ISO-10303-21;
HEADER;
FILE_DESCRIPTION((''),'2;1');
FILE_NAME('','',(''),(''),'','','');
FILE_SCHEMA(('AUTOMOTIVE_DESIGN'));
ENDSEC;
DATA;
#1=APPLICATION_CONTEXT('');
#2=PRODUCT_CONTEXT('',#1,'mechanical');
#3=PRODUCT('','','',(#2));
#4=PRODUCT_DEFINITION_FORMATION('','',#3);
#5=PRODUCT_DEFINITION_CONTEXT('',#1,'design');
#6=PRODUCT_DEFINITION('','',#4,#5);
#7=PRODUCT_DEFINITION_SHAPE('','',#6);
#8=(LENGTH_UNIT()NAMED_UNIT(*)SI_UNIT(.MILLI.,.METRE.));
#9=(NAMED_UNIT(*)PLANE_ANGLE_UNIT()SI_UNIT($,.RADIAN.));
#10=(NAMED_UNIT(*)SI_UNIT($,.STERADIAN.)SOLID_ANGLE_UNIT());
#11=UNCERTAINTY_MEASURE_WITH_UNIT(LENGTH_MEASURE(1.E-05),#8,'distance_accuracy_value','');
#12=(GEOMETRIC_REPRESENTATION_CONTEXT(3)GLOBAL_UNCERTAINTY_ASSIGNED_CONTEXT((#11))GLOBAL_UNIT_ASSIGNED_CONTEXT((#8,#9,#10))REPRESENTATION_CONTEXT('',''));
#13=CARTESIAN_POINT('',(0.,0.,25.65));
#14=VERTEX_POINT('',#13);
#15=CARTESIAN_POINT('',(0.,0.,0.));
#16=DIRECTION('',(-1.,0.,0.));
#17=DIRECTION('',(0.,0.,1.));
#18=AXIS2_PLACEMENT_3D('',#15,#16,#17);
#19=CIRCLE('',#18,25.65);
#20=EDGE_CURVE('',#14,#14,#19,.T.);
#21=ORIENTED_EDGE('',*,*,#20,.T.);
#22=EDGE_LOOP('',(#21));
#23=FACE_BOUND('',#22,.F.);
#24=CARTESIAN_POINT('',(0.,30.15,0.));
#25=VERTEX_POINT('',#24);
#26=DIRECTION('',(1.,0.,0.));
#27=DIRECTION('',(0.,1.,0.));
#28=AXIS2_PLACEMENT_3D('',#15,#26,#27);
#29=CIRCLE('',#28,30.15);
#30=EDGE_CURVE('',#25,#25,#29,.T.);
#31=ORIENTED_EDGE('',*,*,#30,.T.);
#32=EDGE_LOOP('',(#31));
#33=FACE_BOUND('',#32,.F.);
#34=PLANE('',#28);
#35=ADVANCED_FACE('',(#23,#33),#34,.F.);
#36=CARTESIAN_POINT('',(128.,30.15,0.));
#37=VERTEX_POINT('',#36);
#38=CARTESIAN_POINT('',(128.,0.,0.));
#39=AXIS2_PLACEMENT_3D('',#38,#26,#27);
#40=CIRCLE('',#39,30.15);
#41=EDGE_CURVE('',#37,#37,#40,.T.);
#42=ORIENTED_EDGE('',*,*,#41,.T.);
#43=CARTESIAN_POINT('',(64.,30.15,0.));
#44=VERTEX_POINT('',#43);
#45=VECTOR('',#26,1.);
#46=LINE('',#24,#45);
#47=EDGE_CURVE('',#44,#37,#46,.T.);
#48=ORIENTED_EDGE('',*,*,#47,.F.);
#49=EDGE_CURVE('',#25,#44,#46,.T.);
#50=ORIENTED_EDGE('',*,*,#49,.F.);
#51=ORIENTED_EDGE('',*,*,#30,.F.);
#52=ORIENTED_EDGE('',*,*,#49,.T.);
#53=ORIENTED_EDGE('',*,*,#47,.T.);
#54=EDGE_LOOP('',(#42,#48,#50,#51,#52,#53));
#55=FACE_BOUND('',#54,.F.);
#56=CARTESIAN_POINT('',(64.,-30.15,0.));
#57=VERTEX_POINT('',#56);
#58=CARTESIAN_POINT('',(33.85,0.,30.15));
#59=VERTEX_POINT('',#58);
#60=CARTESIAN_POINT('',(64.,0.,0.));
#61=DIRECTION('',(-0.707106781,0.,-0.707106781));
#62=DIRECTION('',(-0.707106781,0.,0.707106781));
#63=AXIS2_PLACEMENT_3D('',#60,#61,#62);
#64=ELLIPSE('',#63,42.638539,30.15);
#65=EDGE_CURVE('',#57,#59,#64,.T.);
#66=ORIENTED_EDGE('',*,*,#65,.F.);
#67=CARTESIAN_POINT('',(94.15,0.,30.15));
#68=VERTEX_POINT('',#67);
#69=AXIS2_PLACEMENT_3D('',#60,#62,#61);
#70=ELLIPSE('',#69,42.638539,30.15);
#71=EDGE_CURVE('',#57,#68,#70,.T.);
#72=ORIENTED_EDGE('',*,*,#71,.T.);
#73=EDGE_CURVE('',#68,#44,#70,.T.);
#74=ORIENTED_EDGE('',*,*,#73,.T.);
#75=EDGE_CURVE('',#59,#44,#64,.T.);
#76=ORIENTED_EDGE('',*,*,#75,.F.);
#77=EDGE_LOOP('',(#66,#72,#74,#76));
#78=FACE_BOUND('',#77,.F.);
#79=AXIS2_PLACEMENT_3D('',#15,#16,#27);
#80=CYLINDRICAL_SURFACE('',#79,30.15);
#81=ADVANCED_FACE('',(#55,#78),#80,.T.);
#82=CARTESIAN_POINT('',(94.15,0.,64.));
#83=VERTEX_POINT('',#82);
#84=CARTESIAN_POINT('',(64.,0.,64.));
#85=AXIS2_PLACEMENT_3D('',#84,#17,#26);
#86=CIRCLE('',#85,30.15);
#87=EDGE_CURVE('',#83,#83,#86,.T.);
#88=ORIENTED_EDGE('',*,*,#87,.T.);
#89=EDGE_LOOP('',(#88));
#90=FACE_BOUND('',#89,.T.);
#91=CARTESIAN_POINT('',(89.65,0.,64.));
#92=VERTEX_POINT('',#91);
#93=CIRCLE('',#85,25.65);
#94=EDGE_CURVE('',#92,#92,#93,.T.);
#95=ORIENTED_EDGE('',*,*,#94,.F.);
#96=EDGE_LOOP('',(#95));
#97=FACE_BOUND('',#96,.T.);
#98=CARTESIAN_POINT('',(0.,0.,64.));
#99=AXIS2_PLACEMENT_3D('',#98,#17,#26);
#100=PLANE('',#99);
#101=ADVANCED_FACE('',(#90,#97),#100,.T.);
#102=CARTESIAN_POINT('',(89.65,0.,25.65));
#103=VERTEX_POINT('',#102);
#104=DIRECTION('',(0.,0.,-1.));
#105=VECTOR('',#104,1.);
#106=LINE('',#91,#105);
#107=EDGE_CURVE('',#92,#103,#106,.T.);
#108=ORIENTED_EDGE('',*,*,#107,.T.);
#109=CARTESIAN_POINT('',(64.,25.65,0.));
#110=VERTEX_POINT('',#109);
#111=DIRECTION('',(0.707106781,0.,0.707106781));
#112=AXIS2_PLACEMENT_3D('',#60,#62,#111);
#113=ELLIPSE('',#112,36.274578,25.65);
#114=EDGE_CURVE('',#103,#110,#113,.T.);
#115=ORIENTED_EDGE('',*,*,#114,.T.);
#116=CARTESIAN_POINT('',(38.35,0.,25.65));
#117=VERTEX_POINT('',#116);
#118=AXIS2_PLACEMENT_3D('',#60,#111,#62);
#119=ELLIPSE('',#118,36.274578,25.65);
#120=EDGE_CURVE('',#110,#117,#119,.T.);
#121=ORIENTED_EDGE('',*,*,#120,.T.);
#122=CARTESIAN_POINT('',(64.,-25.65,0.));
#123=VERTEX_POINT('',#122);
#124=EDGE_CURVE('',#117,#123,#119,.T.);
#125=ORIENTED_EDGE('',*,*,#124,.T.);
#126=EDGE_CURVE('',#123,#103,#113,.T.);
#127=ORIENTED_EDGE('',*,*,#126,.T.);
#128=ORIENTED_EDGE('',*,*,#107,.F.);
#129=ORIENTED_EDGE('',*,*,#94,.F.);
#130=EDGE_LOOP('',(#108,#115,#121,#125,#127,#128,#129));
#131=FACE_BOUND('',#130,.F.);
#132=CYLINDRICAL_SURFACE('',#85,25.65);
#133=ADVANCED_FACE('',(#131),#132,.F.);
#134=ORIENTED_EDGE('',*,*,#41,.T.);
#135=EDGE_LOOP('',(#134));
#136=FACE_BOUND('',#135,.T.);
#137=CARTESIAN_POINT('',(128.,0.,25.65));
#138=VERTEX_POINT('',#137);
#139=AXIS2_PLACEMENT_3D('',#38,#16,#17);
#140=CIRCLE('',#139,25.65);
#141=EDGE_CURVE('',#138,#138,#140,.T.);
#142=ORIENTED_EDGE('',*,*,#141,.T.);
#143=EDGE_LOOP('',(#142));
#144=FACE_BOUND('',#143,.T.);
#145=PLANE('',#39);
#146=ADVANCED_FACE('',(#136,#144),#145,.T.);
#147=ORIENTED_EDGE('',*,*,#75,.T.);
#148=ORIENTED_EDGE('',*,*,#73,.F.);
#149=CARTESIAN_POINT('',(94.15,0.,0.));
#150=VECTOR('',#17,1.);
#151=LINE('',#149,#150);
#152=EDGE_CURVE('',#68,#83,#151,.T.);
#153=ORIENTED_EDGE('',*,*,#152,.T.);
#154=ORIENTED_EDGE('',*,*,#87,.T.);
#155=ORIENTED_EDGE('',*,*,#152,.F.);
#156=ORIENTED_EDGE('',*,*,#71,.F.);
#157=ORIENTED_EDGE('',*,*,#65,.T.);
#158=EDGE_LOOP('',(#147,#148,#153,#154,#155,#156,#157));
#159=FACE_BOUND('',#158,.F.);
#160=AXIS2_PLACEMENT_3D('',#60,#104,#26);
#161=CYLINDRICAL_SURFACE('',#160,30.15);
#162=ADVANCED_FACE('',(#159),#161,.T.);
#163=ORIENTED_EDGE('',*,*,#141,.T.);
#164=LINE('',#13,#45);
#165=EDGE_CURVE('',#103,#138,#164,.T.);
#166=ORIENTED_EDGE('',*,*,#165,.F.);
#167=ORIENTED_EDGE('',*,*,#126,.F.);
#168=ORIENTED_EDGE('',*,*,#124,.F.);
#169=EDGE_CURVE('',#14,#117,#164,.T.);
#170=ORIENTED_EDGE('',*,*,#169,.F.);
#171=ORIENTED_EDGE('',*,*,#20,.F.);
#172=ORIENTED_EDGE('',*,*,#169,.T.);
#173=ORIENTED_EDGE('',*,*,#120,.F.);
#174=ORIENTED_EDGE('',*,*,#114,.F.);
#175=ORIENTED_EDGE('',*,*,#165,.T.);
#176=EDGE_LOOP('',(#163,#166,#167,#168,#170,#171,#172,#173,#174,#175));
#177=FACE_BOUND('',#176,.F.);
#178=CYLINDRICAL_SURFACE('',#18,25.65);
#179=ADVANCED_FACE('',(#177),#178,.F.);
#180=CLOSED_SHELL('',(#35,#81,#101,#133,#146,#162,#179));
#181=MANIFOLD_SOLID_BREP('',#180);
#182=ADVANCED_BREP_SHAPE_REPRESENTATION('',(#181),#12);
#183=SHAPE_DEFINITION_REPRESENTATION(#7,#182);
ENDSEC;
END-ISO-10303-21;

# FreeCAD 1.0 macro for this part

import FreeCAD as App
import Part
import Sketcher
from FreeCAD import Vector
Q = App.Units.Quantity

doc = App.newDocument("Part")
body = doc.addObject("PartDesign::Body", "Body")

# Sketch on YZ plane
sketch1 = doc.addObject("Sketcher::SketchObject", "Sketch")
body.addObject(sketch1)
sketch1.AttachmentSupport = (doc.YZ_Plane, [""])
sketch1.MapMode = "FlatFace"
sketch1.addGeometry(Part.Circle(Vector(0, 0, 0), Vector(0, 0, 1), 30.15), False)
sketch1.addConstraint([
    Sketcher.Constraint("Coincident", 0, 3, -1, 1),
    Sketcher.Constraint("Diameter", 0, Q("60.3 mm")),
])
pad1 = doc.addObject("PartDesign::Pad", "Pad")
body.addObject(pad1)
pad1.Profile = sketch1
pad1.Length = 128

# Sketch on XY plane
sketch2 = doc.addObject("Sketcher::SketchObject", "Sketch001")
body.addObject(sketch2)
sketch2.AttachmentSupport = (doc.XY_Plane, [""])
sketch2.MapMode = "FlatFace"
sketch2.addGeometry(Part.Circle(Vector(64, 0, 0), Vector(0, 0, 1), 30.15), False)
sketch2.addConstraint([
    Sketcher.Constraint("PointOnObject", 0, 3, -1),
    Sketcher.Constraint("Diameter", 0, Q("60.3 mm")),
    Sketcher.Constraint("DistanceX", -1, 1, 0, 3, Q("64 mm")),
])
pad2 = doc.addObject("PartDesign::Pad", "Pad001")
body.addObject(pad2)
pad2.Profile = sketch2
pad2.Length = 64

# Sketch on YZ plane
sketch3 = doc.addObject("Sketcher::SketchObject", "Sketch002")
body.addObject(sketch3)
sketch3.AttachmentSupport = (doc.YZ_Plane, [""])
sketch3.MapMode = "FlatFace"
sketch3.addGeometry(Part.Circle(Vector(0, 0, 0), Vector(0, 0, 1), 25.65), False)
sketch3.addConstraint([
    Sketcher.Constraint("Coincident", 0, 3, -1, 1),
    Sketcher.Constraint("Diameter", 0, Q("51.3 mm")),
])
pocket1 = doc.addObject("PartDesign::Pocket", "Pocket")
body.addObject(pocket1)
pocket1.Profile = sketch3
pocket1.Type = "ThroughAll"
pocket1.Reversed = True

# Sketch on XY plane
sketch4 = doc.addObject("Sketcher::SketchObject", "Sketch003")
body.addObject(sketch4)
sketch4.AttachmentSupport = (doc.XY_Plane, [""])
sketch4.MapMode = "FlatFace"
sketch4.AttachmentOffset = App.Placement(Vector(0, 0, 64), App.Rotation())
sketch4.addGeometry(Part.Circle(Vector(64, 0, 0), Vector(0, 0, 1), 25.65), False)
sketch4.addConstraint([
    Sketcher.Constraint("PointOnObject", 0, 3, -1),
    Sketcher.Constraint("Diameter", 0, Q("51.3 mm")),
    Sketcher.Constraint("DistanceX", -1, 1, 0, 3, Q("64 mm")),
])
pocket2 = doc.addObject("PartDesign::Pocket", "Pocket001")
body.addObject(pocket2)
pocket2.Profile = sketch4
pocket2.Type = "UpToFirst"

doc.recompute()
